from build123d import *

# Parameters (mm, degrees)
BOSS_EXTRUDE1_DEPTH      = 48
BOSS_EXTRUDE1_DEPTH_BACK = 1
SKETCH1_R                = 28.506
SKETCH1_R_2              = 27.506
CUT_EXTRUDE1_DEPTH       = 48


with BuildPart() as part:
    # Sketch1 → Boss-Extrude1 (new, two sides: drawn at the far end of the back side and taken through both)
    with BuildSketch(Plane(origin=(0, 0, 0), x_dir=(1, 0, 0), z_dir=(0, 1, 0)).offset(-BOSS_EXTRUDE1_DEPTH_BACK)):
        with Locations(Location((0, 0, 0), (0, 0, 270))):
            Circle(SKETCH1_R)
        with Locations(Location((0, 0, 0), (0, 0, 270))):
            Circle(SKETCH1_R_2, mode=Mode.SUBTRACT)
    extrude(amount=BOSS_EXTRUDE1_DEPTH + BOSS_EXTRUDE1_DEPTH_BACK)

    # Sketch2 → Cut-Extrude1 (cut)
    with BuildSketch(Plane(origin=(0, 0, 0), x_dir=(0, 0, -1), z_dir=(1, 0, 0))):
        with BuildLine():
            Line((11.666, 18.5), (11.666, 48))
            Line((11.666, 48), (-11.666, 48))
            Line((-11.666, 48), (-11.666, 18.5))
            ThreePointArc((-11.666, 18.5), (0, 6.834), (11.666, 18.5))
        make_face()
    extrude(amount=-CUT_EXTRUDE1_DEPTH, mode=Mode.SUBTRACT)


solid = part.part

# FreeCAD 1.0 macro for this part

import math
import FreeCAD as App
import Part
import Sketcher

doc = App.newDocument("Part")
params = doc.addObject("Spreadsheet::Sheet", "Params")
for row, (alias, value) in enumerate([
    ("pad1_length", "48 mm"),
    ("pad1_length2", "1 mm"),
    ("sketch2_width", "29.5 mm"),
    ("pocket1_length", "48 mm"),
], start=1):
    params.set(f"A{row}", alias)
    params.set(f"B{row}", "=" + value)
    params.setAlias(f"B{row}", alias)

body = doc.addObject("PartDesign::Body", "Body")

sketch1 = doc.addObject("Sketcher::SketchObject", "Sketch")
body.addObject(sketch1)
sketch1.AttachmentSupport = (doc.XZ_Plane, [""])
sketch1.MapMode = "FlatFace"
sketch1.addGeometry([
    Part.Circle(App.Vector(0, 0, 0), App.Vector(0, 0, 1), 29),
    Part.Circle(App.Vector(0, 0, 0), App.Vector(0, 0, 1), 28),
], False)
sketch1.addConstraint([
    Sketcher.Constraint("Coincident", 0, 3, -1, 1),
    Sketcher.Constraint("Coincident", 1, 3, -1, 1),
    Sketcher.Constraint("Diameter", 0, 57.012),
    Sketcher.Constraint("Diameter", 1, 55.012),
])
pad1 = doc.addObject("PartDesign::Pad", "Pad")
body.addObject(pad1)
pad1.Profile = sketch1
pad1.Type = "TwoLengths"
pad1.setExpression("Length", "Params.pad1_length")
pad1.setExpression("Length2", "Params.pad1_length2")
pad1.Reversed = True

sketch2 = doc.addObject("Sketcher::SketchObject", "Sketch001")
body.addObject(sketch2)
sketch2.AttachmentSupport = (doc.YZ_Plane, [""])
sketch2.MapMode = "FlatFace"
sketch2.addGeometry([
    Part.LineSegment(App.Vector(18, -12, 0), App.Vector(48, -12, 0)),
    Part.LineSegment(App.Vector(48, -12, 0), App.Vector(48, 12, 0)),
    Part.LineSegment(App.Vector(48, 12, 0), App.Vector(18, 12, 0)),
    Part.ArcOfCircle(Part.Circle(App.Vector(18, 0, 0), App.Vector(0, 0, 1), 12), math.radians(90), math.radians(270)),
], False)
sketch2.addConstraint([
    Sketcher.Constraint("Coincident", 0, 2, 1, 1),
    Sketcher.Constraint("Coincident", 1, 2, 2, 1),
    Sketcher.Constraint("Tangent", 2, 2, 3, 1),
    Sketcher.Constraint("Tangent", 3, 2, 0, 1),
    Sketcher.Constraint("Horizontal", 0),
    Sketcher.Constraint("Vertical", 1),
    Sketcher.Constraint("Horizontal", 2),
    Sketcher.Constraint("PointOnObject", 3, 3, -1),
    Sketcher.Constraint("DistanceX", 0, 1, 0, 2, 29.5),
    Sketcher.Constraint("DistanceX", -1, 1, 0, 2, 48.0),
    Sketcher.Constraint("Radius", 3, 11.666),
])
sketch2.setExpression("Constraints[8]", "Params.sketch2_width")
pocket1 = doc.addObject("PartDesign::Pocket", "Pocket")
body.addObject(pocket1)
pocket1.Profile = sketch2
pocket1.setExpression("Length", "Params.pocket1_length")

doc.recompute()
